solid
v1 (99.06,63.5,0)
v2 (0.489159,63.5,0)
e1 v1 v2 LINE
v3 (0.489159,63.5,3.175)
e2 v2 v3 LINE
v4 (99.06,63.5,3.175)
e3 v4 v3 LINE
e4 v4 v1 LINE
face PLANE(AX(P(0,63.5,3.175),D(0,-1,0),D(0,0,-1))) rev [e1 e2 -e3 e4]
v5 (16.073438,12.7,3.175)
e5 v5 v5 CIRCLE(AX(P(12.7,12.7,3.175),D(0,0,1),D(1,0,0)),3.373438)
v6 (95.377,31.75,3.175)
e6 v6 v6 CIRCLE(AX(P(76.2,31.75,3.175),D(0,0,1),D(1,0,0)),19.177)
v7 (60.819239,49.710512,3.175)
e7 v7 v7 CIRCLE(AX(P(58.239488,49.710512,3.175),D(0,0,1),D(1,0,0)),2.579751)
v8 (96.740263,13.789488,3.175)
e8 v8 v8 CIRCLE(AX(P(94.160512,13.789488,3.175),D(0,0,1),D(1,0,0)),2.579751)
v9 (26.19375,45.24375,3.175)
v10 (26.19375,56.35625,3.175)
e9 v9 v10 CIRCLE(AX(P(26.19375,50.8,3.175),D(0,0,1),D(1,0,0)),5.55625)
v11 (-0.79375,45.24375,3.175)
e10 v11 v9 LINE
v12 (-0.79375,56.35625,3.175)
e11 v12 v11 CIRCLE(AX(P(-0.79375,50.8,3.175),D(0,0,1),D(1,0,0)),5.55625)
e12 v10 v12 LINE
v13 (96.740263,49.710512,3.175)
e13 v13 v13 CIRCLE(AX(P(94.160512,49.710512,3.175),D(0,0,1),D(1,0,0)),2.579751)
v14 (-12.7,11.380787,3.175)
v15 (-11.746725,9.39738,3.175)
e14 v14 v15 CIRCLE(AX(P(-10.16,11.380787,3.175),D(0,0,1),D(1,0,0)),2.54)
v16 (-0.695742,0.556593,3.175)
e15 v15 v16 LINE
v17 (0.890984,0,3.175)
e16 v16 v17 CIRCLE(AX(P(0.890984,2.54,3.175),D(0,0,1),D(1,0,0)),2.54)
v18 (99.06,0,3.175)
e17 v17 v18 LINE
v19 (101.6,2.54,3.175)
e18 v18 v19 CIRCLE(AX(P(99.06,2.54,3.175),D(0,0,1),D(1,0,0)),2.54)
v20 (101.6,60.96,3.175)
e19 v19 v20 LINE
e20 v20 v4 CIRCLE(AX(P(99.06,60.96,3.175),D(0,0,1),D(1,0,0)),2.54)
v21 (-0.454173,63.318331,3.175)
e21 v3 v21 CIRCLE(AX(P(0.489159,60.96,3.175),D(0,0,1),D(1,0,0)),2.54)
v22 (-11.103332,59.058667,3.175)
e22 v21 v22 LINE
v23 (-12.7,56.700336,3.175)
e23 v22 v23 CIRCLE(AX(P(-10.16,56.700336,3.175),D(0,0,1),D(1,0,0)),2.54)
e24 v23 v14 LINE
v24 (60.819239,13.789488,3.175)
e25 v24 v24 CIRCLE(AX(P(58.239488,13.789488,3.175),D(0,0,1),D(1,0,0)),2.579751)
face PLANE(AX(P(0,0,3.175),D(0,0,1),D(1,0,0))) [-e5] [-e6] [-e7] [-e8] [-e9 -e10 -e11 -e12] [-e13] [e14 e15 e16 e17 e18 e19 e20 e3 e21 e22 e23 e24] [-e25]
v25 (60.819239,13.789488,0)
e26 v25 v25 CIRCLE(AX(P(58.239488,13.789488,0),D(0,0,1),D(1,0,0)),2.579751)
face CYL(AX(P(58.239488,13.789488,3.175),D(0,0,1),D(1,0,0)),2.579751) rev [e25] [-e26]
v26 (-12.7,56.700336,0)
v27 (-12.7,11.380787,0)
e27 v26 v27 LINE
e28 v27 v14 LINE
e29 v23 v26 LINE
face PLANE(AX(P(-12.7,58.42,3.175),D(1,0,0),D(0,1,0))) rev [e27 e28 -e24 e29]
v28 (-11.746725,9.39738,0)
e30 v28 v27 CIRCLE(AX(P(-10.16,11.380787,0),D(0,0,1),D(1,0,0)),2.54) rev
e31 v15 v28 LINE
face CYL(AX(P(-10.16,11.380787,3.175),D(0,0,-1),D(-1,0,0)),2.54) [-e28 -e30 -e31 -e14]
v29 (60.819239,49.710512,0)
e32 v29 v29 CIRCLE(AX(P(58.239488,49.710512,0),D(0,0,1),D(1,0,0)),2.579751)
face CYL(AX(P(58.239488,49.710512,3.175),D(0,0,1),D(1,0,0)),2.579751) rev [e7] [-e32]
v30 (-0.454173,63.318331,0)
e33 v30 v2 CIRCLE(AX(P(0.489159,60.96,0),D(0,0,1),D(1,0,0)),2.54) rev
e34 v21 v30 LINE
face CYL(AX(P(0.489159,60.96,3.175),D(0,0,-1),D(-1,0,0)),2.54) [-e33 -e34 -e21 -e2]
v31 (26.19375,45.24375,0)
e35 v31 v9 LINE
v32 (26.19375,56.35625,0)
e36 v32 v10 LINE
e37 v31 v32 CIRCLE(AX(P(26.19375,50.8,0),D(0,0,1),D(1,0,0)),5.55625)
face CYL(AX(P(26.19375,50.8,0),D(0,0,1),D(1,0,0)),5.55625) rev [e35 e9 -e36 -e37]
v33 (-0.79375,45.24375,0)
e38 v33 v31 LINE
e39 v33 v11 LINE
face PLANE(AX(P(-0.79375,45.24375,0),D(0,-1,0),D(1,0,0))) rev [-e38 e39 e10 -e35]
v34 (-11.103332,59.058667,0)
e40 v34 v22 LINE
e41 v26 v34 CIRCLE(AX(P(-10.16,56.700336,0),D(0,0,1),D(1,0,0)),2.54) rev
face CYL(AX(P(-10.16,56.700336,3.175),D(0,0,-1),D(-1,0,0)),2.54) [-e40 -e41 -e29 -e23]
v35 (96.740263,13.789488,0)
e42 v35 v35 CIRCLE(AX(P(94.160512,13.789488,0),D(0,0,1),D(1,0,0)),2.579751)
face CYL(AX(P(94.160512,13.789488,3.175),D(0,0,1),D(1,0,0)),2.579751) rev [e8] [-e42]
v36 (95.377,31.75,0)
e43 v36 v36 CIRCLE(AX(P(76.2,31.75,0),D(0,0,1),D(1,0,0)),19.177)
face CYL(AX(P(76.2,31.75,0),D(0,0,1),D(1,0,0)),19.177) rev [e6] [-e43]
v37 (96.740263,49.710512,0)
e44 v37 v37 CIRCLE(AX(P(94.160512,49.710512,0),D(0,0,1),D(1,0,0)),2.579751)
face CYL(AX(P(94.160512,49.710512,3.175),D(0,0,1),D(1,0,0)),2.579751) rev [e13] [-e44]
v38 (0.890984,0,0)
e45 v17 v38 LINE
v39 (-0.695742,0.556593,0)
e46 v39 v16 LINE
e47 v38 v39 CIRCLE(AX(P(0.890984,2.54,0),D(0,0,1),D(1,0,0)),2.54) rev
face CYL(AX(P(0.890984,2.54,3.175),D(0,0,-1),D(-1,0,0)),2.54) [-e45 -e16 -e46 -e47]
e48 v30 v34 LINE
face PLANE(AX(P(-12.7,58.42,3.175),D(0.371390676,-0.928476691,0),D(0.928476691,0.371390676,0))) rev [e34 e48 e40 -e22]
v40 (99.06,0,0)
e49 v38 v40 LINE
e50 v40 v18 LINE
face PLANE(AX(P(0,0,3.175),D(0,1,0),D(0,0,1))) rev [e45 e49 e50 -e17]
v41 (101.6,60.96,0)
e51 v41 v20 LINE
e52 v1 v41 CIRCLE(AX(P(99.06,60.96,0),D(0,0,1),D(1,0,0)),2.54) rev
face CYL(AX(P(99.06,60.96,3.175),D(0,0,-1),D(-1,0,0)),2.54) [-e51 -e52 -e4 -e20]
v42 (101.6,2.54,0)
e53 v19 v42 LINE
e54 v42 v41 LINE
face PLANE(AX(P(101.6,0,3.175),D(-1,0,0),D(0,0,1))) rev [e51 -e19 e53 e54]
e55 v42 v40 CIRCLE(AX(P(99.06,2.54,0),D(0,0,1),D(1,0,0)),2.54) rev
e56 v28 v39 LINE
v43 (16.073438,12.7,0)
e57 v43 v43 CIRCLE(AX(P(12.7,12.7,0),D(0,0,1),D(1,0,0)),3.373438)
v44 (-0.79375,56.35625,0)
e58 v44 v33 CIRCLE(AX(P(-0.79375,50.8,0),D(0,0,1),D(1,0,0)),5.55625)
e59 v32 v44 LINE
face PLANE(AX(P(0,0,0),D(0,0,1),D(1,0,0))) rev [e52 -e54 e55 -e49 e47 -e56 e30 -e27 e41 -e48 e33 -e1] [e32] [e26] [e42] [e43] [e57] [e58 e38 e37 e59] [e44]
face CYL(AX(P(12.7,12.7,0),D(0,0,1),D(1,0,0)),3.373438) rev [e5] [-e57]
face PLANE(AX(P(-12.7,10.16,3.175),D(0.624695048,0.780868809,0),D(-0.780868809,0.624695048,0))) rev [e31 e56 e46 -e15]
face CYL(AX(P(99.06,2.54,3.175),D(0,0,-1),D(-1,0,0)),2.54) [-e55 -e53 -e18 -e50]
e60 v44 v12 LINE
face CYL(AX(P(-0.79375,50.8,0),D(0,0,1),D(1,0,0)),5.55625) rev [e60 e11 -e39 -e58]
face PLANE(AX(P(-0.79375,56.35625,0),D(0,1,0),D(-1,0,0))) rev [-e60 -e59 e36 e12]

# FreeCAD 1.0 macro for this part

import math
import FreeCAD as App
import Part
import Sketcher

V = App.Vector
Q = App.Units.Quantity


def edges_at(feature, points):
    """Names of the edges that pass closest to the given points."""
    edges = feature.Shape.Edges
    near = lambda p: min(range(len(edges)), key=lambda i: edges[i].distToShape(Part.Vertex(*p))[0])
    return sorted({f"Edge{near(p) + 1}" for p in points})


def add_polygon(sketch, points):
    """Adds a closed chain of lines whose ends are joined by coincident constraints."""
    first, n = sketch.GeometryCount, len(points)
    for a, b in zip(points, points[1:] + points[:1]):
        sketch.addGeometry(Part.LineSegment(App.Vector(*a, 0), App.Vector(*b, 0)), False)
    for i in range(n):
        sketch.addConstraint(Sketcher.Constraint("Coincident", first + i, 2, first + (i + 1) % n, 1))

doc = App.newDocument("Part")
params = doc.addObject("Spreadsheet::Sheet", "Params")
for row, (alias, value) in enumerate([
    ("sketch1_width", "4 in"),
    ("sketch1_height", "1.9 in"),
    ("sketch1_height2", "2.5 in"),
    ("pad1_length", "0.125 in"),
    ("sketch2_diameter", "1.51 in"),
    ("pocket1_length", "0.125 in"),
    ("sketch3_diameter", "0.265625 in"),
    ("pocket2_length", "0.125 in"),
    ("sketch4_radius", "0.21875 in"),
    ("sketch4_width", "1.0625 in"),
    ("fillet_radius", "0.1 in"),
    ("hole_diameter", "5.159502 mm"),
], start=1):
    params.set(f"A{row}", alias)
    params.set(f"B{row}", "=" + value)
    params.setAlias(f"B{row}", alias)

body = doc.addObject("PartDesign::Body", "Body")

sketch1 = body.newObject("Sketcher::SketchObject", "Sketch")
sketch1.AttachmentSupport = (doc.getObject("XY_Plane"), [""])
sketch1.MapMode = "FlatFace"
add_polygon(sketch1, [(0, 63.5), (-12.7, 58.42), (-12.7, 10.16), (0, 0), (101.6, 0), (101.6, 63.5)])
sketch1.addConstraint([
    Sketcher.Constraint("Vertical", 1),
    Sketcher.Constraint("Horizontal", 3),
    Sketcher.Constraint("Vertical", 4),
    Sketcher.Constraint("Horizontal", 5),
    Sketcher.Constraint("Coincident", 2, 2, -1, 1),
    Sketcher.Constraint("PointOnObject", 5, 2, -2),
    Sketcher.Constraint("DistanceX", 3, 1, 3, 2, Q("4 in")),
    Sketcher.Constraint("DistanceY", 1, 2, 1, 1, Q("1.9 in")),
    Sketcher.Constraint("DistanceY", 4, 1, 4, 2, Q("2.5 in")),
    Sketcher.Constraint("DistanceX", 0, 2, -1, 1, Q("0.5 in")),
    Sketcher.Constraint("DistanceY", -1, 1, 0, 2, Q("2.3 in")),
])
sketch1.setExpression("Constraints[12]", "Params.sketch1_width")
sketch1.setExpression("Constraints[13]", "Params.sketch1_height")
sketch1.setExpression("Constraints[14]", "Params.sketch1_height2")
pad1 = body.newObject("PartDesign::Pad", "Pad")
pad1.Profile = sketch1
pad1.setExpression("Length", "Params.pad1_length")

sketch2 = body.newObject("Sketcher::SketchObject", "Sketch001")
sketch2.AttachmentSupport = (doc.getObject("XY_Plane"), [""])
sketch2.MapMode = "FlatFace"
sketch2.AttachmentOffset = App.Placement(V(0, 0, 0.125 * 25.4), App.Rotation())
sketch2.addGeometry(Part.Circle(V(76.2, 31.75, 0), V(0, 0, 1), 19.177), False)
sketch2.addConstraint([
    Sketcher.Constraint("Diameter", 0, Q("1.51 in")),
    Sketcher.Constraint("DistanceX", -1, 1, 0, 3, Q("3 in")),
    Sketcher.Constraint("DistanceY", -1, 1, 0, 3, Q("1.25 in")),
])
sketch2.setExpression("Constraints[0]", "Params.sketch2_diameter")
pocket1 = body.newObject("PartDesign::Pocket", "Pocket")
pocket1.Profile = sketch2
pocket1.setExpression("Length", "Params.pocket1_length")

sketch3 = body.newObject("Sketcher::SketchObject", "Sketch002")
sketch3.AttachmentSupport = (doc.getObject("XY_Plane"), [""])
sketch3.MapMode = "FlatFace"
sketch3.AttachmentOffset = App.Placement(V(0, 0, 0.125 * 25.4), App.Rotation())
sketch3.addGeometry(Part.Circle(V(12.7, 12.7, 0), V(0, 0, 1), 3.373438), False)
sketch3.addConstraint([
    Sketcher.Constraint("Diameter", 0, Q("0.265625 in")),
    Sketcher.Constraint("DistanceX", -1, 1, 0, 3, Q("0.5 in")),
    Sketcher.Constraint("DistanceY", -1, 1, 0, 3, Q("0.5 in")),
])
sketch3.setExpression("Constraints[0]", "Params.sketch3_diameter")
pocket2 = body.newObject("PartDesign::Pocket", "Pocket001")
pocket2.Profile = sketch3
pocket2.setExpression("Length", "Params.pocket2_length")

sketch4 = body.newObject("Sketcher::SketchObject", "Sketch003")
sketch4.AttachmentSupport = (doc.getObject("XY_Plane"), [""])
sketch4.MapMode = "FlatFace"
sketch4.AttachmentOffset = App.Placement(V(0, 0, 0.125 * 25.4), App.Rotation())
sketch4.addGeometry([
    Part.LineSegment(V(26.19375, 56.35625, 0), V(-0.79375, 56.35625, 0)),
    Part.ArcOfCircle(Part.Circle(V(-0.79375, 50.8, 0), V(0, 0, 1), 5.55625), math.radians(90), math.radians(270)),
    Part.LineSegment(V(-0.79375, 45.24375, 0), V(26.19375, 45.24375, 0)),
    Part.ArcOfCircle(Part.Circle(V(26.19375, 50.8, 0), V(0, 0, 1), 5.55625), math.radians(-90), math.radians(90)),
], False)
sketch4.addConstraint([
    Sketcher.Constraint("Tangent", 0, 2, 1, 1),
    Sketcher.Constraint("Tangent", 1, 2, 2, 1),
    Sketcher.Constraint("Tangent", 2, 2, 3, 1),
    Sketcher.Constraint("Tangent", 3, 2, 0, 1),
    Sketcher.Constraint("Horizontal", 0),
    Sketcher.Constraint("Horizontal", 2),
    Sketcher.Constraint("DistanceY", -1, 1, 1, 3, Q("2 in")),
    Sketcher.Constraint("Radius", 1, Q("0.21875 in")),
    Sketcher.Constraint("DistanceX", 0, 2, 0, 1, Q("1.0625 in")),
    Sketcher.Constraint("DistanceX", 1, 3, -1, 1, Q("0.03125 in")),
])
sketch4.setExpression("Constraints[7]", "Params.sketch4_radius")
sketch4.setExpression("Constraints[8]", "Params.sketch4_width")
pocket3 = body.newObject("PartDesign::Pocket", "Pocket002")
pocket3.Profile = sketch4
pocket3.Type = "ThroughAll"
doc.recompute()

fillet = body.newObject("PartDesign::Fillet", "Fillet")
fillet.Base = (pocket3, edges_at(pocket3, [
    (-12.7, 10.16, 1.587),
    (-12.7, 58.42, 1.587),
    (0, 63.5, 1.587),
    (101.6, 63.5, 1.587),
    (101.6, 0, 1.587),
    (0, 0, 1.587),
]))
fillet.setExpression("Radius", "Params.fillet_radius")

sketch5 = body.newObject("Sketcher::SketchObject", "Sketch004")
sketch5.AttachmentSupport = (doc.getObject("XY_Plane"), [""])
sketch5.MapMode = "FlatFace"
sketch5.AttachmentOffset = App.Placement(V(0, 0, 0.125 * 25.4), App.Rotation())
sketch5.addGeometry([
    Part.Circle(V(58.239488, 49.710512, 0), V(0, 0, 1), 2.579751),
    Part.Circle(V(94.160512, 49.710512, 0), V(0, 0, 1), 2.579751),
    Part.Circle(V(94.160512, 13.789488, 0), V(0, 0, 1), 2.579751),
    Part.Circle(V(58.239488, 13.789488, 0), V(0, 0, 1), 2.579751),
], False)
sketch5.addConstraint([
    Sketcher.Constraint("Equal", 0, 1),
    Sketcher.Constraint("Equal", 1, 2),
    Sketcher.Constraint("Equal", 2, 3),
    Sketcher.Constraint("Horizontal", 0, 3, 1, 3),
    Sketcher.Constraint("Horizontal", 2, 3, 3, 3),
    Sketcher.Constraint("Vertical", 1, 3, 2, 3),
    Sketcher.Constraint("Vertical", 0, 3, 3, 3),
    Sketcher.Constraint("Diameter", 0, 5.159502),
    Sketcher.Constraint("DistanceX", -1, 1, 0, 3, 58.239488),
    Sketcher.Constraint("DistanceY", -1, 1, 0, 3, 49.710512),
    Sketcher.Constraint("DistanceX", -1, 1, 1, 3, 94.160512),
    Sketcher.Constraint("DistanceY", -1, 1, 2, 3, 13.789488),
])
doc.recompute()
hole = body.newObject("PartDesign::Hole", "Hole")
hole.Profile = sketch5
hole.ThreadType = "None"
hole.setExpression("Diameter", "Params.hole_diameter")
hole.DepthType = "ThroughAll"

doc.recompute()
